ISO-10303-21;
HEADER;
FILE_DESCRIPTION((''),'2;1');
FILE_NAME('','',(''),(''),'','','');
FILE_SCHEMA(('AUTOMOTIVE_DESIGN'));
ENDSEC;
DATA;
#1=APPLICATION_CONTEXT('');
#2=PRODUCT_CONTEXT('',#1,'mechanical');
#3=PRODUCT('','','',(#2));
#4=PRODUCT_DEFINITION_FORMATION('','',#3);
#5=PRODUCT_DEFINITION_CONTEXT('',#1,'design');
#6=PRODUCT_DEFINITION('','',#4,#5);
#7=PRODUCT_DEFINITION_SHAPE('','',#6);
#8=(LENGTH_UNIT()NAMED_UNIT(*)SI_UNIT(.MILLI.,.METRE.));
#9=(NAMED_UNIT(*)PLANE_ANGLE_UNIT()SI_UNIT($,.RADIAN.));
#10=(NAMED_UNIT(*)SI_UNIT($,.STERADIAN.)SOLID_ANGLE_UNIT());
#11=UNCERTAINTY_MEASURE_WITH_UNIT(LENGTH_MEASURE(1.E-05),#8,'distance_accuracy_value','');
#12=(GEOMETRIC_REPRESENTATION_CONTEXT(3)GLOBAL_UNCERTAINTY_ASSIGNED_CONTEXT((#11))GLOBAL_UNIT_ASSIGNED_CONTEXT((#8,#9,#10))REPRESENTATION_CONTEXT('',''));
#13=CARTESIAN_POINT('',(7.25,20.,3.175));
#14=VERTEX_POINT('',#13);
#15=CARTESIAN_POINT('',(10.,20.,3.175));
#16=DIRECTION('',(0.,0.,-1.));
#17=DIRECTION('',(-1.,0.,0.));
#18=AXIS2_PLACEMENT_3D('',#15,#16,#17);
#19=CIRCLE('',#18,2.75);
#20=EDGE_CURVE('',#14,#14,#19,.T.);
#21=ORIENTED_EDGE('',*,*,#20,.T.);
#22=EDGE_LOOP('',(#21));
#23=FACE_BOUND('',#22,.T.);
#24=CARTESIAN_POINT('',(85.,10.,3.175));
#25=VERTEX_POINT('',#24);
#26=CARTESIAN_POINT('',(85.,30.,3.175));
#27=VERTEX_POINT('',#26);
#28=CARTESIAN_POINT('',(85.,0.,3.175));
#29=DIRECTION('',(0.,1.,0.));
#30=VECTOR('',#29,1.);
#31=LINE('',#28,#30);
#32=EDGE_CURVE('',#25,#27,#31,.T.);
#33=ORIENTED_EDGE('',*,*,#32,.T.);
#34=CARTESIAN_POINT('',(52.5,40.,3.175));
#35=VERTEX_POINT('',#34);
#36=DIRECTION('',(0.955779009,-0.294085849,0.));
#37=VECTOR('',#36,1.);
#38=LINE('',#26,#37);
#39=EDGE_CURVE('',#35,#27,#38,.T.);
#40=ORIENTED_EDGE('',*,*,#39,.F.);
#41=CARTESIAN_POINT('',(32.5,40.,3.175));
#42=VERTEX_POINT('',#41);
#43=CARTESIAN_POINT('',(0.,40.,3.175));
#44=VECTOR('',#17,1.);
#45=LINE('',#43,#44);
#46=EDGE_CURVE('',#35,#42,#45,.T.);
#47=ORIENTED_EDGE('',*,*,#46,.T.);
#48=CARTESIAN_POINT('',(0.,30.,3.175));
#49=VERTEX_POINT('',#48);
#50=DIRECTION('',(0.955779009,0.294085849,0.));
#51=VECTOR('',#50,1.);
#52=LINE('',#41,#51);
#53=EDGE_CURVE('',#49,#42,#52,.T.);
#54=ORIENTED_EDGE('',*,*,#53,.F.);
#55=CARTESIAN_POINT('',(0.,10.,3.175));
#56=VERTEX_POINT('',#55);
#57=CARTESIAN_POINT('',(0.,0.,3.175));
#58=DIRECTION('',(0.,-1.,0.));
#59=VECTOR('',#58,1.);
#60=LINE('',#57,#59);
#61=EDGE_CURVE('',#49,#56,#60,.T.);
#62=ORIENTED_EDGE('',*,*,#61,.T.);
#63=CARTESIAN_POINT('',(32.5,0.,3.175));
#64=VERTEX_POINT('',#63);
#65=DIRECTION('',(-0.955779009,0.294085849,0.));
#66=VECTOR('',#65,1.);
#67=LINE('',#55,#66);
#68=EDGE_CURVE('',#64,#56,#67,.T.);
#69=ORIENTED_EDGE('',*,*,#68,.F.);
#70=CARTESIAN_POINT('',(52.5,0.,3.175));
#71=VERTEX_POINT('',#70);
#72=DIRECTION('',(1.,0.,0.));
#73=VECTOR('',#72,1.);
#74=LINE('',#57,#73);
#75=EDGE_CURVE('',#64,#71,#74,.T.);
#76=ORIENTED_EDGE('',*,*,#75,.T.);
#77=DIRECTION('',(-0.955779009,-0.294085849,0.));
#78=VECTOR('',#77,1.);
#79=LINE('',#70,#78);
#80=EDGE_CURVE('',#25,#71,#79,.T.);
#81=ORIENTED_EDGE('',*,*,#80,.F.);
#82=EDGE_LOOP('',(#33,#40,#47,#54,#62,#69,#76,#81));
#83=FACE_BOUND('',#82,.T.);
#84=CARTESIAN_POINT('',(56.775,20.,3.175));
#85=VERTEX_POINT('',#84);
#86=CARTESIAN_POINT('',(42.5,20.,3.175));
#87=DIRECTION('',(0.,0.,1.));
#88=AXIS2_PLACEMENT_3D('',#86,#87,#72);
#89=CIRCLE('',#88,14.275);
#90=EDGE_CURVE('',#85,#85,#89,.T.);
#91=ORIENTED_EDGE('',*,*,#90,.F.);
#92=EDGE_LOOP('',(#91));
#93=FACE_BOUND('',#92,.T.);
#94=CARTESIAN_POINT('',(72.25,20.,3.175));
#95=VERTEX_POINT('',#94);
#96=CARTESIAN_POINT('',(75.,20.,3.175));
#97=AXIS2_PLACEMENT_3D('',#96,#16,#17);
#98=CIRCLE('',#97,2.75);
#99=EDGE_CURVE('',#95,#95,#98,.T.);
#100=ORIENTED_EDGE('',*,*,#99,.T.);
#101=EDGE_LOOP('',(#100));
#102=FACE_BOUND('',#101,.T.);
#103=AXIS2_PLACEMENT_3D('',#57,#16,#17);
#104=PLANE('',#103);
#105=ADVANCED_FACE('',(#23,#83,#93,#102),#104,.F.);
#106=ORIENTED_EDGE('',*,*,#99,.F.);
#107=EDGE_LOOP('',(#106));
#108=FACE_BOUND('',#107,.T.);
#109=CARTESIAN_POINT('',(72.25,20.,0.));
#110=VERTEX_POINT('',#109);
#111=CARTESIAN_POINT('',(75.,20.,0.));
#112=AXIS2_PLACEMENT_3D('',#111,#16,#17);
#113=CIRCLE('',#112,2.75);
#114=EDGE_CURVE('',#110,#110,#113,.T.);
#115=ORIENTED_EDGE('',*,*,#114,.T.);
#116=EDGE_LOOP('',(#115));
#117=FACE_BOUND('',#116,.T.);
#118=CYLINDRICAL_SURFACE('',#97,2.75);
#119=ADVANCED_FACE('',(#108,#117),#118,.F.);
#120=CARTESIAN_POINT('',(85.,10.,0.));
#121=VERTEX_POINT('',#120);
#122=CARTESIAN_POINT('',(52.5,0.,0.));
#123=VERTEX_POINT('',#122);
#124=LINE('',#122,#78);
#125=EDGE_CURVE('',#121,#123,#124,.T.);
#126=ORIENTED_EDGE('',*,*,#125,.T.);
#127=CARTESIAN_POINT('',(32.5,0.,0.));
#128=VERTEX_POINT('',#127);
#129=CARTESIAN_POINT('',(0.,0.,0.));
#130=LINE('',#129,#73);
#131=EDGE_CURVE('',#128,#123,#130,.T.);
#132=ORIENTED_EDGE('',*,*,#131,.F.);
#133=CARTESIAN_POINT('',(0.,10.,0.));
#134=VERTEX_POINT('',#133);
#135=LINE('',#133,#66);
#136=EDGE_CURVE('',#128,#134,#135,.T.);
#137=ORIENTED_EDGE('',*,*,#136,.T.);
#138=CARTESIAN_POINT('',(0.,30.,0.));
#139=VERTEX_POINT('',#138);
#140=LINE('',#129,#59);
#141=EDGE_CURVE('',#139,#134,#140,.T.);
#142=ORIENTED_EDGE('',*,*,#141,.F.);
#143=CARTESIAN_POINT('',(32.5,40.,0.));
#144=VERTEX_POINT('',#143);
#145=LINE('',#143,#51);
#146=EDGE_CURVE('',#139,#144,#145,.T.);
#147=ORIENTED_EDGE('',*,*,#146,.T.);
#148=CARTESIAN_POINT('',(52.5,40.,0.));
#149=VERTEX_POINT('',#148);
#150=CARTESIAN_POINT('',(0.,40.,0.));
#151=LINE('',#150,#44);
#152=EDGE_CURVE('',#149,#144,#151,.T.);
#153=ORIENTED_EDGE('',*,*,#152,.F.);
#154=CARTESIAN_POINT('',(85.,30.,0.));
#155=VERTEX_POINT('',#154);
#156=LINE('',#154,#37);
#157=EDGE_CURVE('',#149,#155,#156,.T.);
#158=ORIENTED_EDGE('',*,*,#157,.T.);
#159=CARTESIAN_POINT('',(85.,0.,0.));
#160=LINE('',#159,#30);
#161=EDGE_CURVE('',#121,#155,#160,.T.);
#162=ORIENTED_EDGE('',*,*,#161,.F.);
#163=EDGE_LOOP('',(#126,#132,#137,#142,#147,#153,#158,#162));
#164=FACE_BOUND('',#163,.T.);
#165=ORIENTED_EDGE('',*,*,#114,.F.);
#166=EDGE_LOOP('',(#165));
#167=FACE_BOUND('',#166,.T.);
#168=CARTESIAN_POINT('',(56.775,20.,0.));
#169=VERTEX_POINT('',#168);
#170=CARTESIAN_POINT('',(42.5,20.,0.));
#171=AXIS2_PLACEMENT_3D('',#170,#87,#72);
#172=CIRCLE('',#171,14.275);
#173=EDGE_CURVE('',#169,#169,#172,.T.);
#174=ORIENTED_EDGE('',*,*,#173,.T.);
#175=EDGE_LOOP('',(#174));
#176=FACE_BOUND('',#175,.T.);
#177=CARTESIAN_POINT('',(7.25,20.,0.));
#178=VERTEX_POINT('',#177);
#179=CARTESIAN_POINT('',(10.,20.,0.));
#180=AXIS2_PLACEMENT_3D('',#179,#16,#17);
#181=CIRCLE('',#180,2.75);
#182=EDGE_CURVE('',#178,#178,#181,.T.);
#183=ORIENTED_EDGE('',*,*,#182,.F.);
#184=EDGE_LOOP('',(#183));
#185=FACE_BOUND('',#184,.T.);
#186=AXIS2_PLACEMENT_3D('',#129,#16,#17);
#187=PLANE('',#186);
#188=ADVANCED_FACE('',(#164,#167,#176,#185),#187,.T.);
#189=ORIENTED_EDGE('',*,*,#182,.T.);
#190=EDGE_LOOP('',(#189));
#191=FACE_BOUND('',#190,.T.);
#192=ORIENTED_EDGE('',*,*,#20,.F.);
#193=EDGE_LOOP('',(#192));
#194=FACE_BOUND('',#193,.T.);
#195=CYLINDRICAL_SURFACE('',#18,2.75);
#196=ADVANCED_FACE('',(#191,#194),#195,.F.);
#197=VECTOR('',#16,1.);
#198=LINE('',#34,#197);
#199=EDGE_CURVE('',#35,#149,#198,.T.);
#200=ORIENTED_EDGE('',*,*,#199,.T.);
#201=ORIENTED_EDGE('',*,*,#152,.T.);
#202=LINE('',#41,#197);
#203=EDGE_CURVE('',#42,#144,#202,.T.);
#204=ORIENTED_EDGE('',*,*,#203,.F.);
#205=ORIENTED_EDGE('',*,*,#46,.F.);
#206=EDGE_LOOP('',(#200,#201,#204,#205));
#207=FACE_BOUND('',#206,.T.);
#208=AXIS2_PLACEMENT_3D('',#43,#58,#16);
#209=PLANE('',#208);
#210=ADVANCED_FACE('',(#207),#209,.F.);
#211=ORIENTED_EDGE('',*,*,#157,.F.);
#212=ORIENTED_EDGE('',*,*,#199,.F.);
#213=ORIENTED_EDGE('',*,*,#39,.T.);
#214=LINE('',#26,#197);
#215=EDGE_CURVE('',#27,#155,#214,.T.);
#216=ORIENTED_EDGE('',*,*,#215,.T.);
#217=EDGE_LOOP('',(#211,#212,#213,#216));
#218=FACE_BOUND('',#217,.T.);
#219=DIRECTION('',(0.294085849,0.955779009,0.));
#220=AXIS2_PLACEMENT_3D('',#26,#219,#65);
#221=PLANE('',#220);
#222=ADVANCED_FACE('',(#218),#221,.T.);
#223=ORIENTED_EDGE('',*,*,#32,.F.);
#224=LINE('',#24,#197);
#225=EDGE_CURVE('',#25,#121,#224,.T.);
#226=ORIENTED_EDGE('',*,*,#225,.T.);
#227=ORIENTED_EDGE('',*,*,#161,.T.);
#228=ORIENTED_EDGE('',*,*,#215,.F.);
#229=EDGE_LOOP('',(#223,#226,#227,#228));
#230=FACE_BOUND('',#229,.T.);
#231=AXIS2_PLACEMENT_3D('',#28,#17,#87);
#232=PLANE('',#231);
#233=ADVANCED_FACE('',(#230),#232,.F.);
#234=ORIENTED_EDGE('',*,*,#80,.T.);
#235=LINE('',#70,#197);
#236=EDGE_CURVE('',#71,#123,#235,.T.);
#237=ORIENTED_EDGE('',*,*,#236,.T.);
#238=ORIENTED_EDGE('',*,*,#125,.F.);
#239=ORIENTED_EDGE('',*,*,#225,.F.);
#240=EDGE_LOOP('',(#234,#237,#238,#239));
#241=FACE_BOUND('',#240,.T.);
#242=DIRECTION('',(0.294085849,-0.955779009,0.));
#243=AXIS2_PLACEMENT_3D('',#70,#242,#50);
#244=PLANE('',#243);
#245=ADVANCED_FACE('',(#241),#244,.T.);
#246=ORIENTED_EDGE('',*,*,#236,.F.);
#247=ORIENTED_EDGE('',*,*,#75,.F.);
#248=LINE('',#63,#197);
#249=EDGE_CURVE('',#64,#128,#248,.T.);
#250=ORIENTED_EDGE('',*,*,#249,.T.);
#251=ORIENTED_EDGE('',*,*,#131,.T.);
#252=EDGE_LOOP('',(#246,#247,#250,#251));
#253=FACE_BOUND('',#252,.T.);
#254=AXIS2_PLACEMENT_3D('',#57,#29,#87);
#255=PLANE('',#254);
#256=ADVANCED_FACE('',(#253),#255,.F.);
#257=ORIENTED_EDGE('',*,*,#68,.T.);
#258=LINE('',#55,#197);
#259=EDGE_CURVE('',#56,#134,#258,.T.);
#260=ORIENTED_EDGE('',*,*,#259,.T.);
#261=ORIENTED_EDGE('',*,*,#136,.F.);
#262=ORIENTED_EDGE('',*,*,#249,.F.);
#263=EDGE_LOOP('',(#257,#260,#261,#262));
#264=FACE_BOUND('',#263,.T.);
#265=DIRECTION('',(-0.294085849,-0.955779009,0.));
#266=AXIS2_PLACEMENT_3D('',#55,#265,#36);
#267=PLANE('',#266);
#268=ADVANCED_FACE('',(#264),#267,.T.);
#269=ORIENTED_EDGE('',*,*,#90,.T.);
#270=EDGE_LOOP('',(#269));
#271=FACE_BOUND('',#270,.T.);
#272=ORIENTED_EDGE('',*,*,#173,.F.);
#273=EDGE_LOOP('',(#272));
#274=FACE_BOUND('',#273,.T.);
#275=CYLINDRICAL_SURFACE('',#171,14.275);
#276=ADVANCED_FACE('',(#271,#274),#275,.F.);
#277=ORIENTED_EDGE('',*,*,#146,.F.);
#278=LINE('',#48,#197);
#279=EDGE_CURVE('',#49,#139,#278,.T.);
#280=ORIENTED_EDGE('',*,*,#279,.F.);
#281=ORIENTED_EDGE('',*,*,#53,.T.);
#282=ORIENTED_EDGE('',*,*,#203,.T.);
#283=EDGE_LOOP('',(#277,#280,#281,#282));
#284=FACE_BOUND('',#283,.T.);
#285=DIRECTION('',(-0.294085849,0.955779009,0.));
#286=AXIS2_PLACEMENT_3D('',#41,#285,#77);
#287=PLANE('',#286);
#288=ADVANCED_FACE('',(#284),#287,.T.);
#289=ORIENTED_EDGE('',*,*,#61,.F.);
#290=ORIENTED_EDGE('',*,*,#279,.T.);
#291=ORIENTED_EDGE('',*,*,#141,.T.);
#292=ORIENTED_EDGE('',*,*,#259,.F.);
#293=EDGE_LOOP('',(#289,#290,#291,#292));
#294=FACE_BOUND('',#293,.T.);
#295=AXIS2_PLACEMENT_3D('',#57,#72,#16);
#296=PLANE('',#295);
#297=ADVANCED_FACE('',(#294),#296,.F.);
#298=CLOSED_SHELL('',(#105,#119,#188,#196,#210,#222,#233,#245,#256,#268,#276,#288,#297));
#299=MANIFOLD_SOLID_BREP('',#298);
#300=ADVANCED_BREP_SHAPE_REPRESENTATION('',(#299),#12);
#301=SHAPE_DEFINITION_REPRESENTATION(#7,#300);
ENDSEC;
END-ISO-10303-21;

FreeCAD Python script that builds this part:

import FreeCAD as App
import Part
import Sketcher

V = App.Vector
Q = App.Units.Quantity


def add_polygon(sketch, points):
    """Adds a closed chain of lines whose ends are joined by coincident constraints."""
    first, n = sketch.GeometryCount, len(points)
    for a, b in zip(points, points[1:] + points[:1]):
        sketch.addGeometry(Part.LineSegment(App.Vector(*a, 0), App.Vector(*b, 0)), False)
    for i in range(n):
        sketch.addConstraint(Sketcher.Constraint("Coincident", first + i, 2, first + (i + 1) % n, 1))

doc = App.newDocument("Part")
body = doc.addObject("PartDesign::Body", "Body")

sketch1 = body.newObject("Sketcher::SketchObject", "Sketch")
sketch1.AttachmentSupport = (doc.getObject("XY_Plane"), [""])
sketch1.MapMode = "FlatFace"
add_polygon(sketch1, [(0, 40), (0, 0), (85, 0), (85, 40)])
sketch1.addConstraint([
    Sketcher.Constraint("Vertical", 0),
    Sketcher.Constraint("Horizontal", 1),
    Sketcher.Constraint("Vertical", 2),
    Sketcher.Constraint("Horizontal", 3),
    Sketcher.Constraint("Coincident", 0, 2, -1, 1),
    Sketcher.Constraint("DistanceX", 1, 1, 1, 2, Q("85 mm")),
    Sketcher.Constraint("DistanceY", 0, 2, 0, 1, Q("40 mm")),
])
pad1 = body.newObject("PartDesign::Pad", "Pad")
pad1.Profile = sketch1
pad1.Length = 3.175

sketch2 = body.newObject("Sketcher::SketchObject", "Sketch001")
sketch2.AttachmentSupport = (doc.getObject("XY_Plane"), [""])
sketch2.MapMode = "FlatFace"
sketch2.AttachmentOffset = App.Placement(V(0, 0, 3.175), App.Rotation())
sketch2.addGeometry(Part.Circle(V(42, 20, 0), V(0, 0, 1), 14), False)
sketch2.addConstraint([
    Sketcher.Constraint("Diameter", 0, Q("28.55 mm")),
    Sketcher.Constraint("DistanceY", -1, 1, 0, 3, Q("20 mm")),
    Sketcher.Constraint("DistanceX", -1, 1, 0, 3, Q("42.5 mm")),
])
pocket1 = body.newObject("PartDesign::Pocket", "Pocket")
pocket1.Profile = sketch2
pocket1.Type = "ThroughAll"

sketch3 = body.newObject("Sketcher::SketchObject", "Sketch002")
sketch3.AttachmentSupport = (doc.getObject("XY_Plane"), [""])
sketch3.MapMode = "FlatFace"
add_polygon(sketch3, [(95, 50), (95, -10), (-10, -10), (-10, 50)])
add_polygon(sketch3, [(52, 40), (32, 40), (0, 30), (0, 10), (32, 0), (52, 0), (85, 10), (85, 30)])
sketch3.addConstraint([
    Sketcher.Constraint("Vertical", 0),
    Sketcher.Constraint("Horizontal", 1),
    Sketcher.Constraint("Vertical", 2),
    Sketcher.Constraint("Horizontal", 3),
    Sketcher.Constraint("Horizontal", 4),
    Sketcher.Constraint("Vertical", 6),
    Sketcher.Constraint("Horizontal", 8),
    Sketcher.Constraint("Vertical", 10),
    Sketcher.Constraint("PointOnObject", 5, 2, -2),
    Sketcher.Constraint("PointOnObject", 7, 2, -1),
    Sketcher.Constraint("Parallel", 5, 9),
    Sketcher.Constraint("Parallel", 7, 11),
    Sketcher.Constraint("Horizontal", 6, 2, 9, 2),
    Sketcher.Constraint("Horizontal", 5, 2, 10, 2),
    Sketcher.Constraint("Vertical", 4, 2, 7, 2),
    Sketcher.Constraint("Vertical", 8, 2, 11, 2),
    Sketcher.Constraint("Equal", 8, 6),
    Sketcher.Constraint("DistanceX", 4, 2, 4, 1, Q("20 mm")),
    Sketcher.Constraint("DistanceX", 1, 2, 1, 1, Q("105.8 mm")),
    Sketcher.Constraint("DistanceY", 0, 2, 0, 1, Q("60.8 mm")),
    Sketcher.Constraint("DistanceY", -1, 1, 4, 2, Q("40 mm")),
    Sketcher.Constraint("DistanceX", -1, 1, 9, 2, Q("85 mm")),
    Sketcher.Constraint("DistanceX", -1, 1, 0, 2, Q("95.4 mm")),
    Sketcher.Constraint("DistanceY", 0, 2, -1, 1, Q("10.4 mm")),
])
pocket2 = body.newObject("PartDesign::Pocket", "Pocket001")
pocket2.Profile = sketch3
pocket2.Type = "ThroughAll"
pocket2.Reversed = True

sketch4 = body.newObject("Sketcher::SketchObject", "Sketch003")
sketch4.AttachmentSupport = (doc.getObject("XY_Plane"), [""])
sketch4.MapMode = "FlatFace"
sketch4.addGeometry([
    Part.Circle(V(75, 20, 0), V(0, 0, 1), 2.8),
    Part.Circle(V(10, 20, 0), V(0, 0, 1), 2.8),
], False)
sketch4.addConstraint([
    Sketcher.Constraint("Equal", 0, 1),
    Sketcher.Constraint("Horizontal", 0, 3, 1, 3),
    Sketcher.Constraint("Diameter", 0, Q("5.5 mm")),
    Sketcher.Constraint("DistanceX", -1, 1, 0, 3, Q("75 mm")),
    Sketcher.Constraint("DistanceY", -1, 1, 0, 3, Q("20 mm")),
    Sketcher.Constraint("DistanceX", -1, 1, 1, 3, Q("10 mm")),
])
pocket3 = body.newObject("PartDesign::Pocket", "Pocket002")
pocket3.Profile = sketch4
pocket3.Type = "ThroughAll"
pocket3.Reversed = True

doc.recompute()
